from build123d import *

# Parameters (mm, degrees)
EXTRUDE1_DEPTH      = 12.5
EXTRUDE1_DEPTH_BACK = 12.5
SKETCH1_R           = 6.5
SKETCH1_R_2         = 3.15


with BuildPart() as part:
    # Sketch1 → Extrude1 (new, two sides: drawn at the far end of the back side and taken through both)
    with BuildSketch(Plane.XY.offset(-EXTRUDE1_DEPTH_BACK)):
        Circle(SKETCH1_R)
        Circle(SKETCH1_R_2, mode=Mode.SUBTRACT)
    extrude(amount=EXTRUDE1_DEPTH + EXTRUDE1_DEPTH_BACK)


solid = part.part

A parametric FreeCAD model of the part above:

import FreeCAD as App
import Part
import Sketcher
Q = App.Units.Quantity

doc = App.newDocument("Part")
body = doc.addObject("PartDesign::Body", "Body")

sketch1 = body.newObject("Sketcher::SketchObject", "Sketch")
sketch1.AttachmentSupport = (doc.getObject("XY_Plane"), [""])
sketch1.MapMode = "FlatFace"
sketch1.addGeometry([
    Part.Circle(App.Vector(0, 0, 0), App.Vector(0, 0, 1), 6.5),
    Part.Circle(App.Vector(0, 0, 0), App.Vector(0, 0, 1), 3.1),
], False)
sketch1.addConstraint([
    Sketcher.Constraint("Coincident", 0, 3, -1, 1),
    Sketcher.Constraint("Coincident", 1, 3, -1, 1),
    Sketcher.Constraint("Diameter", 0, Q("13 mm")),
    Sketcher.Constraint("Diameter", 1, Q("6.3 mm")),
])
pad1 = body.newObject("PartDesign::Pad", "Pad")
pad1.Profile = sketch1
pad1.Type = "TwoLengths"
pad1.Length = 12.5
pad1.Length2 = 12.5

doc.recompute()
